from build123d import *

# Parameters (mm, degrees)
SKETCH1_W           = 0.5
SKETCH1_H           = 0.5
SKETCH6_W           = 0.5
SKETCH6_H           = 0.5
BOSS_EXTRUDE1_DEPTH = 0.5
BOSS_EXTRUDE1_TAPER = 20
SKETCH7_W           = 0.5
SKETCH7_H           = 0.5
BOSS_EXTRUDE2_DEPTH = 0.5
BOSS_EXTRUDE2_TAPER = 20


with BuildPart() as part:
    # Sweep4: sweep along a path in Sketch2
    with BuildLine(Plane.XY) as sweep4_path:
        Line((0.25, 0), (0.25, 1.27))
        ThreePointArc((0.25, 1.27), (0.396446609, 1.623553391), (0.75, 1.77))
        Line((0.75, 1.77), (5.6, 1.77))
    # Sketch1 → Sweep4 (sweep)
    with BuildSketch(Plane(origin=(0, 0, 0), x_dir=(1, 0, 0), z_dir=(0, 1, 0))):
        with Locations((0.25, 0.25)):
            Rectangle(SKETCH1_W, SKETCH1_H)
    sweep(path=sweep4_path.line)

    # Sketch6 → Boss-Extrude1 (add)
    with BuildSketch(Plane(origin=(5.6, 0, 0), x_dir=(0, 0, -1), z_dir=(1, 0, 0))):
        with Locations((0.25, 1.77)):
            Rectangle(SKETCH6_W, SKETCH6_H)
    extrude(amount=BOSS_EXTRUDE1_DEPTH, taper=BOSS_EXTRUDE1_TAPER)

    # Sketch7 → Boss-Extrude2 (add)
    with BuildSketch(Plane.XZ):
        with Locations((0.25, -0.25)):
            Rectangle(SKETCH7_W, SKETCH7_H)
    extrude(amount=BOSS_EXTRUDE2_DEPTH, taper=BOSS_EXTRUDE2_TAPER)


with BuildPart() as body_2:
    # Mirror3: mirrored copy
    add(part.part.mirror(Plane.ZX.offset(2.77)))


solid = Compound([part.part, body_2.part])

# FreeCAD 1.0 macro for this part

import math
import FreeCAD as App
import Part
import Sketcher

V = App.Vector
Q = App.Units.Quantity


def add_polygon(sketch, points):
    """Adds a closed chain of lines whose ends are joined by coincident constraints."""
    first, n = sketch.GeometryCount, len(points)
    for a, b in zip(points, points[1:] + points[:1]):
        sketch.addGeometry(Part.LineSegment(App.Vector(*a, 0), App.Vector(*b, 0)), False)
    for i in range(n):
        sketch.addConstraint(Sketcher.Constraint("Coincident", first + i, 2, first + (i + 1) % n, 1))

doc = App.newDocument("Part")
body = doc.addObject("PartDesign::Body", "Body")

sketch1 = body.newObject("Sketcher::SketchObject", "Sketch")
sketch1.AttachmentSupport = (doc.getObject("XZ_Plane"), [""])
sketch1.MapMode = "FlatFace"
add_polygon(sketch1, [(0, -0.5), (0, 0), (0.5, 0), (0.5, -0.5)])
sketch1.addConstraint([
    Sketcher.Constraint("Vertical", 0),
    Sketcher.Constraint("Horizontal", 1),
    Sketcher.Constraint("Vertical", 2),
    Sketcher.Constraint("Horizontal", 3),
    Sketcher.Constraint("Coincident", 0, 2, -1, 1),
    Sketcher.Constraint("Equal", 3, 0),
    Sketcher.Constraint("DistanceX", 1, 1, 1, 2, Q("0.5 mm")),
])

sketch2 = body.newObject("Sketcher::SketchObject", "Sketch001")
sketch2.AttachmentSupport = (doc.getObject("XY_Plane"), [""])
sketch2.MapMode = "FlatFace"
sketch2.addGeometry([
    Part.LineSegment(V(0.25, 0, 0), V(0.25, 1.27, 0)),
    Part.ArcOfCircle(Part.Circle(V(0.75, 1.27, 0), V(0, 0, 1), 0.5), math.radians(90), math.radians(180)),
    Part.LineSegment(V(0.75, 1.77, 0), V(5.6, 1.77, 0)),
], False)
sketch2.addConstraint([
    Sketcher.Constraint("Tangent", 0, 2, 1, 2),
    Sketcher.Constraint("Tangent", 1, 1, 2, 1),
    Sketcher.Constraint("Vertical", 0),
    Sketcher.Constraint("Horizontal", 2),
    Sketcher.Constraint("PointOnObject", 0, 1, -1),
    Sketcher.Constraint("Radius", 1, Q("0.5 mm")),
    Sketcher.Constraint("DistanceX", 2, 1, 2, 2, Q("4.85 mm")),
    Sketcher.Constraint("DistanceY", 0, 1, 0, 2, Q("1.27 mm")),
    Sketcher.Constraint("DistanceX", -1, 1, 2, 2, Q("5.6 mm")),
])
doc.recompute()

additivepipe = body.newObject("PartDesign::AdditivePipe", "AdditivePipe")
additivepipe.Profile = sketch1
additivepipe.Spine = (sketch2, ["Edge1", "Edge2", "Edge3"])

sketch3 = body.newObject("Sketcher::SketchObject", "Sketch002")
sketch3.AttachmentSupport = (doc.getObject("YZ_Plane"), [""])
sketch3.MapMode = "FlatFace"
sketch3.AttachmentOffset = App.Placement(V(0, 0, 5.6), App.Rotation())
add_polygon(sketch3, [(2.02, 0), (1.52, 0), (1.52, -0.5), (2.02, -0.5)])
sketch3.addConstraint([
    Sketcher.Constraint("Horizontal", 0),
    Sketcher.Constraint("Vertical", 1),
    Sketcher.Constraint("Horizontal", 2),
    Sketcher.Constraint("Vertical", 3),
    Sketcher.Constraint("PointOnObject", 0, 2, -1),
    Sketcher.Constraint("Equal", 2, 1),
    Sketcher.Constraint("DistanceX", 0, 2, 0, 1, Q("0.5 mm")),
    Sketcher.Constraint("DistanceX", -1, 1, 0, 2, Q("1.52 mm")),
])
pad1 = body.newObject("PartDesign::Pad", "Pad")
pad1.Profile = sketch3
pad1.Length = 0.5
pad1.TaperAngle = -20

sketch4 = body.newObject("Sketcher::SketchObject", "Sketch003")
sketch4.AttachmentSupport = (doc.getObject("XZ_Plane"), [""])
sketch4.MapMode = "FlatFace"
add_polygon(sketch4, [(0, 0), (0, -0.5), (0.5, -0.5), (0.5, 0)])
sketch4.addConstraint([
    Sketcher.Constraint("Vertical", 0),
    Sketcher.Constraint("Horizontal", 1),
    Sketcher.Constraint("Vertical", 2),
    Sketcher.Constraint("Horizontal", 3),
    Sketcher.Constraint("Coincident", 3, 2, -1, 1),
    Sketcher.Constraint("Equal", 3, 0),
    Sketcher.Constraint("DistanceX", 1, 1, 1, 2, Q("0.5 mm")),
])
pad2 = body.newObject("PartDesign::Pad", "Pad001")
pad2.Profile = sketch4
pad2.Length = 0.5
pad2.TaperAngle = -20
body2 = doc.addObject("PartDesign::Body", "Body001")
doc.recompute()

mirroring = doc.addObject("Part::Mirroring", "Mirroring")
mirroring.Source = body
mirroring.Base = V(0, 2.77, 0)
mirroring.Normal = V(0, 1, 0)
body2.BaseFeature = mirroring
doc.recompute()
mirroring.Visibility = False

doc.recompute()
